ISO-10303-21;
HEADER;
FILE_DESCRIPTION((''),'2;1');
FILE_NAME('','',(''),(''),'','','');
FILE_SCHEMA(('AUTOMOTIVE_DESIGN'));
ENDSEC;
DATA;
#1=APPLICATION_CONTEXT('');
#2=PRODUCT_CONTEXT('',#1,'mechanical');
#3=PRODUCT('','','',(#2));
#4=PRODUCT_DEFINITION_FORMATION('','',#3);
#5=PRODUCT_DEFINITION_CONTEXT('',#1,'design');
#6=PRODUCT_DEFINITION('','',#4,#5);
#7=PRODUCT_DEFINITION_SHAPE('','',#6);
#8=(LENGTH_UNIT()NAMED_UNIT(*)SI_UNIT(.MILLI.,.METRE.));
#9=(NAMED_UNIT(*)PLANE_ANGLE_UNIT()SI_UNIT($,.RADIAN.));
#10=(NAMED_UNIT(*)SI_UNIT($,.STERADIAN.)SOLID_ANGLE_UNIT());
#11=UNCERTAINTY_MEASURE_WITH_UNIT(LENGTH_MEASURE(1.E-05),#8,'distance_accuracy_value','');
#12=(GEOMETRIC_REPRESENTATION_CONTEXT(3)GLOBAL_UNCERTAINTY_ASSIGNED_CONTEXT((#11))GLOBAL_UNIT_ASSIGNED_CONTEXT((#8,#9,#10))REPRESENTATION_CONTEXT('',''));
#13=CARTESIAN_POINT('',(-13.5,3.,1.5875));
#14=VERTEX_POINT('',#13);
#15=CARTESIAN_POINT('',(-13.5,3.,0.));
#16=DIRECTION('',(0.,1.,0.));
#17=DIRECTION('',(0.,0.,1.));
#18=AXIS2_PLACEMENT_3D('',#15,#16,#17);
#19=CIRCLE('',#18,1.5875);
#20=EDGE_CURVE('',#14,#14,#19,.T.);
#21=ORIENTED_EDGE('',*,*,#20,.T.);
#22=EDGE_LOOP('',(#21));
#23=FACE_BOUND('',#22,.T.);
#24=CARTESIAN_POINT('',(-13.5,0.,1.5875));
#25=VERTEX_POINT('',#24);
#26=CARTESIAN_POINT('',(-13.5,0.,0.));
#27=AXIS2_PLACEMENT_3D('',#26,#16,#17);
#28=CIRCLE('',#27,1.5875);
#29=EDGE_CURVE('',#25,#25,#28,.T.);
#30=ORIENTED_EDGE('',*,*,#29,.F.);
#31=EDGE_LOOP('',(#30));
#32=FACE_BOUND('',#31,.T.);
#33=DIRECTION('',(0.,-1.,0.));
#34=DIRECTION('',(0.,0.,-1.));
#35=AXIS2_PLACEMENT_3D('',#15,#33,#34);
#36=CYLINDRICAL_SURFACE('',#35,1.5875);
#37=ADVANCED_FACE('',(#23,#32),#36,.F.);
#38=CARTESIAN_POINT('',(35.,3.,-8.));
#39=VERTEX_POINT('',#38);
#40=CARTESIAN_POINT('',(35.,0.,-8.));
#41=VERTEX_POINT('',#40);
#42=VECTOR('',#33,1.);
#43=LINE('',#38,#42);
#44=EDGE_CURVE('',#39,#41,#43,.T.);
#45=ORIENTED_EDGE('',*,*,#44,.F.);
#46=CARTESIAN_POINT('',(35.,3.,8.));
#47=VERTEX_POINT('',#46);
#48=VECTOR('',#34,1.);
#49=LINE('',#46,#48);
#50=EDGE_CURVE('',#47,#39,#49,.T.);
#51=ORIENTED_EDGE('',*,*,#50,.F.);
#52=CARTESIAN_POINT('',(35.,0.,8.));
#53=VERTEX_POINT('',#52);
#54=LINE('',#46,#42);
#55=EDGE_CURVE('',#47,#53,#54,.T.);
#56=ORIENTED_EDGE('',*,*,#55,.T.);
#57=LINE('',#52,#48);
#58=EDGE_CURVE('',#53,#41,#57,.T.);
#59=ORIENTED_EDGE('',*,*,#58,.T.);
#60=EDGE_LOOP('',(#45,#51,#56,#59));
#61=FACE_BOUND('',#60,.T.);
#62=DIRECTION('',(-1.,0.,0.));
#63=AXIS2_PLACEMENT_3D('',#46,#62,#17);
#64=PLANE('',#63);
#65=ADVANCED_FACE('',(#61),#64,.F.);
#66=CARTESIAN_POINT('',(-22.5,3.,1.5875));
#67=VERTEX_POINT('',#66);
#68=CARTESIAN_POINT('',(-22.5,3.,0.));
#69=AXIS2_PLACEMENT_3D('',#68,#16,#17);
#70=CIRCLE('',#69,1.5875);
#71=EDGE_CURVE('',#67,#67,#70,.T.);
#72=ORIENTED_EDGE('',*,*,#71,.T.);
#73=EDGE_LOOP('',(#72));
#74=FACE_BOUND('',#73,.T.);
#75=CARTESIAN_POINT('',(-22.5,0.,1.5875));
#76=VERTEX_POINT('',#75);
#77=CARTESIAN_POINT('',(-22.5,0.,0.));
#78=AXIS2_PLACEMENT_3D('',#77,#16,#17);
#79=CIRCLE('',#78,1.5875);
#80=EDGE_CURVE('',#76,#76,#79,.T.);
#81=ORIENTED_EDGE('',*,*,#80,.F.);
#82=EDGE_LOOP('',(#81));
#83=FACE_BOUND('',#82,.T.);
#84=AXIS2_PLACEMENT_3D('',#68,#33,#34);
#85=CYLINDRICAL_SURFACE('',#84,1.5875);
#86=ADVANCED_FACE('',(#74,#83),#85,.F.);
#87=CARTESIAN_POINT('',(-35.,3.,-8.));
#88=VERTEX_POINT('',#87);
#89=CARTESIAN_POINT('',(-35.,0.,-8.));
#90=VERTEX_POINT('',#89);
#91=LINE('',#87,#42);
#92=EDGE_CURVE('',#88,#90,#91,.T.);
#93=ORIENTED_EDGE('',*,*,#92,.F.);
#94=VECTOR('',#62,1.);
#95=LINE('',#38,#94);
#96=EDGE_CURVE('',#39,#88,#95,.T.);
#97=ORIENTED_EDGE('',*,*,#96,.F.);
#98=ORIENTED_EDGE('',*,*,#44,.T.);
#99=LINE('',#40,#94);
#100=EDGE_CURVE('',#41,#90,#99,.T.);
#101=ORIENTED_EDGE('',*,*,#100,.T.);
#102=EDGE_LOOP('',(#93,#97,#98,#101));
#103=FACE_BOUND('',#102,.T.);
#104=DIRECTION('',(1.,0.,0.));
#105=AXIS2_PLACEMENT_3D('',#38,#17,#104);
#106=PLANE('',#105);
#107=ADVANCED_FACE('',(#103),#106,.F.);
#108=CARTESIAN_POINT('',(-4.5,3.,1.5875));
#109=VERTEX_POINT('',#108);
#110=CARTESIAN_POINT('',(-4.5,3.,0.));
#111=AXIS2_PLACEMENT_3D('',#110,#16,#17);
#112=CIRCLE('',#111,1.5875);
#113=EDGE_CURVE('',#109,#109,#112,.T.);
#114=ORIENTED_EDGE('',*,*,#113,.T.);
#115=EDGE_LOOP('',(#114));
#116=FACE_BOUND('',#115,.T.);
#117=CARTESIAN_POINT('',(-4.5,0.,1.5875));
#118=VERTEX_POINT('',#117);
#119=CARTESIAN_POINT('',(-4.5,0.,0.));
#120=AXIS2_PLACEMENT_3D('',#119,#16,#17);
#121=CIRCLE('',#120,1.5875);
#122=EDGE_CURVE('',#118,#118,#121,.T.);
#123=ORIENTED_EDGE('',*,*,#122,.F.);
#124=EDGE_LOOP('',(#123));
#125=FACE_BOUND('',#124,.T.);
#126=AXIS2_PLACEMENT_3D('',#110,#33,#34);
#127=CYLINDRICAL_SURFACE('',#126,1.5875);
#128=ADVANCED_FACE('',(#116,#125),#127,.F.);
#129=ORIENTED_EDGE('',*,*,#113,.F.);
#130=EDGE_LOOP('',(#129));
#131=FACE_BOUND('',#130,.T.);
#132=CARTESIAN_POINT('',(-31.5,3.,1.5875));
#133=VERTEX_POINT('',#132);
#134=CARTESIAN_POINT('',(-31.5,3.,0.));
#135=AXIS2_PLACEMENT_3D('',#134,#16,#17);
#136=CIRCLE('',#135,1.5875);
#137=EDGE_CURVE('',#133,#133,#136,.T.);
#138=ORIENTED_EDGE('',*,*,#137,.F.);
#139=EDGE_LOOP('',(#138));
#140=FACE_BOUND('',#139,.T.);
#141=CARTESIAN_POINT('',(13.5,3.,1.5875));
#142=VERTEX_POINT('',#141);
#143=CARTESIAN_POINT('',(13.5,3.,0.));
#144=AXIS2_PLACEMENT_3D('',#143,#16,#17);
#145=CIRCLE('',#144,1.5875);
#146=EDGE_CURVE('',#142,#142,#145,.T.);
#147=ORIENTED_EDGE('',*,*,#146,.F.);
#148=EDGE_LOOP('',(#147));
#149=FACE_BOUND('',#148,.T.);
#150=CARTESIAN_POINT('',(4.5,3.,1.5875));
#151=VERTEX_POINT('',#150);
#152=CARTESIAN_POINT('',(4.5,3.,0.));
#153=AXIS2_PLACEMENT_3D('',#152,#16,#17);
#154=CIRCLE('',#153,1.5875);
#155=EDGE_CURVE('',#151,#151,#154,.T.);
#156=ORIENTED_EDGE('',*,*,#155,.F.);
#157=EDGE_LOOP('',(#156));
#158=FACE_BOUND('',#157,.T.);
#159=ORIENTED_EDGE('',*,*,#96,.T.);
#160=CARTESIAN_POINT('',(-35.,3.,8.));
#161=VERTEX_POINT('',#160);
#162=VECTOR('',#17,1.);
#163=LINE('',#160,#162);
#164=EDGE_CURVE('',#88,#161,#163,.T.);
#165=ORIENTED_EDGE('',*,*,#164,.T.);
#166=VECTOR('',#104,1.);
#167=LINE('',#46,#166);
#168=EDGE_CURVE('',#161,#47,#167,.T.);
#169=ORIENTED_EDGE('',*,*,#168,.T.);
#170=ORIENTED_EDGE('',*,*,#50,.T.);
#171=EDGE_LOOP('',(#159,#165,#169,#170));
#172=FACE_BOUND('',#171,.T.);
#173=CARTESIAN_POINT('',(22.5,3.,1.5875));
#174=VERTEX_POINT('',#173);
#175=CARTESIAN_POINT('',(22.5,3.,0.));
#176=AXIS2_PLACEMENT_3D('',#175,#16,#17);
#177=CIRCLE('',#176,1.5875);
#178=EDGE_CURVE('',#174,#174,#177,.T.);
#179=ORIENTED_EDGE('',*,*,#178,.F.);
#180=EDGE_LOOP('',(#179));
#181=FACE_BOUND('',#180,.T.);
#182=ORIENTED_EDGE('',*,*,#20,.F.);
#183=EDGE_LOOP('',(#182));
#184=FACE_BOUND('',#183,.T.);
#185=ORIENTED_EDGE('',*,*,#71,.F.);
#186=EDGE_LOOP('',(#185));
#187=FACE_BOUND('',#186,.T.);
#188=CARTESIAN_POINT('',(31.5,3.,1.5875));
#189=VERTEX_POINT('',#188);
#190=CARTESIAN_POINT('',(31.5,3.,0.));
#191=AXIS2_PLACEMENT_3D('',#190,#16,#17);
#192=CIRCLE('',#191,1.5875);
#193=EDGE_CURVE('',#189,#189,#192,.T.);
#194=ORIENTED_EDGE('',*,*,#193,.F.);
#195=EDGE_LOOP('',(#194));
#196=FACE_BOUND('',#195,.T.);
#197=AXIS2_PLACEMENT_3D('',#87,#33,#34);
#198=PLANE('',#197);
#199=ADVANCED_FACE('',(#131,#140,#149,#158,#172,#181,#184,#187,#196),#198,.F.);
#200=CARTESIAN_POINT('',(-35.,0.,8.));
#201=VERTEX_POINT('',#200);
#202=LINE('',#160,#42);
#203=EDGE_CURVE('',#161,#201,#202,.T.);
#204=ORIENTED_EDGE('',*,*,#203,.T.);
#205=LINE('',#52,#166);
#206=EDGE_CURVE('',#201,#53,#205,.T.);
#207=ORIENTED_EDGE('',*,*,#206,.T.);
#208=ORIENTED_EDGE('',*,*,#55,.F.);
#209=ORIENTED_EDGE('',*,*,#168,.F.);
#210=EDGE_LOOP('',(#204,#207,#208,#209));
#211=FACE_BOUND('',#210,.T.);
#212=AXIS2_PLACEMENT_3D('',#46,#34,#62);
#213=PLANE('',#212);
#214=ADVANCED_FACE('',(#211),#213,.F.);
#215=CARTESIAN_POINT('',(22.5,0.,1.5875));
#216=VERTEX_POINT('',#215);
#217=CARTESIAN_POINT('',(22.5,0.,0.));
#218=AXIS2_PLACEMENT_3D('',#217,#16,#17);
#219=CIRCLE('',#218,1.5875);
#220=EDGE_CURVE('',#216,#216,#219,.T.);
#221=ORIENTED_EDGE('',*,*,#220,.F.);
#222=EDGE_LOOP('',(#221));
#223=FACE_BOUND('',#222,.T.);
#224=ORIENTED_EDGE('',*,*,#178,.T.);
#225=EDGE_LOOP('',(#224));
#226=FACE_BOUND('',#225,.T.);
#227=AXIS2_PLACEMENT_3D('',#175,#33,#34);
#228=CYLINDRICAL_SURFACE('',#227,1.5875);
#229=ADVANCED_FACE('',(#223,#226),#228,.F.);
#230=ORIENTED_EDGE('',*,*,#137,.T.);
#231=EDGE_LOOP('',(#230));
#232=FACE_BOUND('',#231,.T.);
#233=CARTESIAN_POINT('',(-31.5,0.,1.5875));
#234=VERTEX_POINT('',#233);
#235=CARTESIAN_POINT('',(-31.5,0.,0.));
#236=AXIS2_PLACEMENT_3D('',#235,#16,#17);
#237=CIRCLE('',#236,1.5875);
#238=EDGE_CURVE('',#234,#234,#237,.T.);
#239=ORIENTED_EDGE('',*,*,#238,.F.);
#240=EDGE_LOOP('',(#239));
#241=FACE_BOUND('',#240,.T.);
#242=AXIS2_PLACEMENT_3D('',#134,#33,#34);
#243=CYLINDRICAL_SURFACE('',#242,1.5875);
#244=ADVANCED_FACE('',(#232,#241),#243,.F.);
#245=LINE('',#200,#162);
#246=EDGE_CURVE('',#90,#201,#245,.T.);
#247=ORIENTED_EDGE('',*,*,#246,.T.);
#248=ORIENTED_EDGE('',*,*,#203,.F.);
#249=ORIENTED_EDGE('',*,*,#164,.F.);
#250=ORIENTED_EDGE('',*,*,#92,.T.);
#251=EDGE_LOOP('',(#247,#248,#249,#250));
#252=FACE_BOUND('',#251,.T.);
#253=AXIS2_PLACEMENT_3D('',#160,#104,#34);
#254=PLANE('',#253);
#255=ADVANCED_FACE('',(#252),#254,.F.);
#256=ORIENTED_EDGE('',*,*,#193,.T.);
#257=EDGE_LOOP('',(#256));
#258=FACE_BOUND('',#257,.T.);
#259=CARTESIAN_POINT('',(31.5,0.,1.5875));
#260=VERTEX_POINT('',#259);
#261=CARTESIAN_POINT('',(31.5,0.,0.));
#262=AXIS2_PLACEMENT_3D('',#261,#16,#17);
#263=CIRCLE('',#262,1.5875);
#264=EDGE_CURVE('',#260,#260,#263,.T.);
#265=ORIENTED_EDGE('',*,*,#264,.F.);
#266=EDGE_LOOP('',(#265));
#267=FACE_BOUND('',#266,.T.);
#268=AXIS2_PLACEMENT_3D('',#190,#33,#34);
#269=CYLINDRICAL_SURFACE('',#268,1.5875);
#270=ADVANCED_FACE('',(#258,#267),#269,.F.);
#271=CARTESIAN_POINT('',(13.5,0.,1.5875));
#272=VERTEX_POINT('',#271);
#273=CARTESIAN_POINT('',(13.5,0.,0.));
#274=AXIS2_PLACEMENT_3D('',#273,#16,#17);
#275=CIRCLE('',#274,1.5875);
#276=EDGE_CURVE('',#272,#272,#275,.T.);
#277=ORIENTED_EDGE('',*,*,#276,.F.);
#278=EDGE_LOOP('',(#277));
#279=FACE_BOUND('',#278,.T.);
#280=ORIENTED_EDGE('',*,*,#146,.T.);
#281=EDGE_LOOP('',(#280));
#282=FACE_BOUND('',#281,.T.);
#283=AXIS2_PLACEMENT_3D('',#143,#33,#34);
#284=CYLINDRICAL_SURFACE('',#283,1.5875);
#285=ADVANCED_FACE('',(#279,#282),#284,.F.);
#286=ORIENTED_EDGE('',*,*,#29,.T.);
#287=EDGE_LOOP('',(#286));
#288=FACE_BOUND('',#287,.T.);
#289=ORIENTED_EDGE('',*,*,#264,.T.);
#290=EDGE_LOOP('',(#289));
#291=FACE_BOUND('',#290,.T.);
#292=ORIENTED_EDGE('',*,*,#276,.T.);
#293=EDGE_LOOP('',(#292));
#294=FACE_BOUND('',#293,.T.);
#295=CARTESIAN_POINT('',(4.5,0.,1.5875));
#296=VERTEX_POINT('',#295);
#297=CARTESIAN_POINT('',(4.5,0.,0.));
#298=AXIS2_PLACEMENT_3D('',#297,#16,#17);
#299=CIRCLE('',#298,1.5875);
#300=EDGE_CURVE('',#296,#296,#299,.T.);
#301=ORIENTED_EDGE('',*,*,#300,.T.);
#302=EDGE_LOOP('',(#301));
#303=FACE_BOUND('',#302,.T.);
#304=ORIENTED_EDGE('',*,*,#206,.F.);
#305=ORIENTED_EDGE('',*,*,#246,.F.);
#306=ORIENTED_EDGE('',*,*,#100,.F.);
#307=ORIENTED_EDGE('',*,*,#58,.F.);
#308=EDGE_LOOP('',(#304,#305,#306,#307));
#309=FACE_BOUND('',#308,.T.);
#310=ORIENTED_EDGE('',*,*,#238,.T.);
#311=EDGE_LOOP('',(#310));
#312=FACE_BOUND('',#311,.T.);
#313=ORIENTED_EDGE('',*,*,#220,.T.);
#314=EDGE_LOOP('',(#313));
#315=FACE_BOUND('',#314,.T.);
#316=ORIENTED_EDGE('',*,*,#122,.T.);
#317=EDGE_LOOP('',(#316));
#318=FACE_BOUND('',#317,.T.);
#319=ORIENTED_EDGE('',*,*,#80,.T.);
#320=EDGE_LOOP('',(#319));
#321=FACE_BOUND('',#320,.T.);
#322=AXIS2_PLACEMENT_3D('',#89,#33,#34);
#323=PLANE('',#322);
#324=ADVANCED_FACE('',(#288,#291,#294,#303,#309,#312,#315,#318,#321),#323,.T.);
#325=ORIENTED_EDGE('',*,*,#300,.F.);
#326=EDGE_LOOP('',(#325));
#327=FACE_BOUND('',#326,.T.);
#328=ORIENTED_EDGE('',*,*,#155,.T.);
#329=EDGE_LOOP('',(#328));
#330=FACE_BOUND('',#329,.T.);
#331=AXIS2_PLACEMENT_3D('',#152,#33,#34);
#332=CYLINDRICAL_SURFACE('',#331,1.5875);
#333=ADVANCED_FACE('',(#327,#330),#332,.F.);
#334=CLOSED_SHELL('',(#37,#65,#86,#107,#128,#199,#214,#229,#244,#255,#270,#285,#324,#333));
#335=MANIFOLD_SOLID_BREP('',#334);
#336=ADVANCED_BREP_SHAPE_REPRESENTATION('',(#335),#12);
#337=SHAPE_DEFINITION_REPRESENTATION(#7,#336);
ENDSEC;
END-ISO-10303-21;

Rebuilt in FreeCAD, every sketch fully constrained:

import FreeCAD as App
import Part
import Sketcher
Q = App.Units.Quantity


def add_polygon(sketch, points):
    """Adds a closed chain of lines whose ends are joined by coincident constraints."""
    first, n = sketch.GeometryCount, len(points)
    for a, b in zip(points, points[1:] + points[:1]):
        sketch.addGeometry(Part.LineSegment(App.Vector(*a, 0), App.Vector(*b, 0)), False)
    for i in range(n):
        sketch.addConstraint(Sketcher.Constraint("Coincident", first + i, 2, first + (i + 1) % n, 1))

doc = App.newDocument("Part")
body = doc.addObject("PartDesign::Body", "Body")

# Sketch on XZ plane
sketch1 = doc.addObject("Sketcher::SketchObject", "Sketch")
body.addObject(sketch1)
sketch1.AttachmentSupport = (doc.XZ_Plane, [""])
sketch1.MapMode = "FlatFace"
add_polygon(sketch1, [(-35, -8), (-35, 8), (35, 8), (35, -8)])  # lines 0-3
sketch1.addGeometry(Part.Circle(App.Vector(-31.5, 0, 0), App.Vector(0, 0, 1), 1.6), False)  # 4
sketch1.addGeometry(Part.Circle(App.Vector(-22.5, 0, 0), App.Vector(0, 0, 1), 1.6), False)  # 5
sketch1.addGeometry(Part.Circle(App.Vector(-13.5, 0, 0), App.Vector(0, 0, 1), 1.6), False)  # 6
sketch1.addGeometry(Part.Circle(App.Vector(-4.5, 0, 0), App.Vector(0, 0, 1), 1.6), False)  # 7
sketch1.addGeometry(Part.Circle(App.Vector(4.5, 0, 0), App.Vector(0, 0, 1), 1.6), False)  # 8
sketch1.addGeometry(Part.Circle(App.Vector(13.5, 0, 0), App.Vector(0, 0, 1), 1.6), False)  # 9
sketch1.addGeometry(Part.Circle(App.Vector(22.5, 0, 0), App.Vector(0, 0, 1), 1.6), False)  # 10
sketch1.addGeometry(Part.Circle(App.Vector(31.5, 0, 0), App.Vector(0, 0, 1), 1.6), False)  # 11
sketch1.addConstraint(Sketcher.Constraint("Vertical", 0))
sketch1.addConstraint(Sketcher.Constraint("Horizontal", 1))
sketch1.addConstraint(Sketcher.Constraint("Vertical", 2))
sketch1.addConstraint(Sketcher.Constraint("Horizontal", 3))
sketch1.addConstraint(Sketcher.Constraint("Equal", 4, 5))
sketch1.addConstraint(Sketcher.Constraint("Equal", 5, 6))
sketch1.addConstraint(Sketcher.Constraint("Equal", 6, 7))
sketch1.addConstraint(Sketcher.Constraint("Equal", 7, 8))
sketch1.addConstraint(Sketcher.Constraint("Equal", 8, 9))
sketch1.addConstraint(Sketcher.Constraint("Equal", 9, 10))
sketch1.addConstraint(Sketcher.Constraint("Equal", 10, 11))
sketch1.addConstraint(Sketcher.Constraint("Symmetric", 7, 3, 8, 3, -1, 1))
sketch1.addConstraint(Sketcher.Constraint("Symmetric", 6, 3, 9, 3, -1, 1))
sketch1.addConstraint(Sketcher.Constraint("Symmetric", 5, 3, 10, 3, -1, 1))
sketch1.addConstraint(Sketcher.Constraint("Symmetric", 4, 3, 11, 3, -1, 1))
sketch1.addConstraint(Sketcher.Constraint("Symmetric", 0, 2, 2, 2, -1, 1))
sketch1.addConstraint(Sketcher.Constraint("PointOnObject", 4, 3, -1))
sketch1.addConstraint(Sketcher.Constraint("PointOnObject", 5, 3, -1))
sketch1.addConstraint(Sketcher.Constraint("PointOnObject", 6, 3, -1))
sketch1.addConstraint(Sketcher.Constraint("PointOnObject", 7, 3, -1))
sketch1.addConstraint(Sketcher.Constraint("DistanceX", 1, 1, 1, 2, Q("70 mm")))
sketch1.addConstraint(Sketcher.Constraint("DistanceY", 0, 1, 0, 2, Q("16 mm")))
sketch1.addConstraint(Sketcher.Constraint("Diameter", 4, Q("3.175 mm")))
sketch1.addConstraint(Sketcher.Constraint("DistanceX", 4, 3, 5, 3, Q("9 mm")))
sketch1.addConstraint(Sketcher.Constraint("DistanceX", 5, 3, 6, 3, Q("9 mm")))
sketch1.addConstraint(Sketcher.Constraint("DistanceX", 6, 3, 7, 3, Q("9 mm")))
sketch1.addConstraint(Sketcher.Constraint("DistanceX", 7, 3, 8, 3, Q("9 mm")))
pad1 = doc.addObject("PartDesign::Pad", "Pad")
body.addObject(pad1)
pad1.Profile = sketch1
pad1.Length = 3
pad1.Reversed = True

doc.recompute()
